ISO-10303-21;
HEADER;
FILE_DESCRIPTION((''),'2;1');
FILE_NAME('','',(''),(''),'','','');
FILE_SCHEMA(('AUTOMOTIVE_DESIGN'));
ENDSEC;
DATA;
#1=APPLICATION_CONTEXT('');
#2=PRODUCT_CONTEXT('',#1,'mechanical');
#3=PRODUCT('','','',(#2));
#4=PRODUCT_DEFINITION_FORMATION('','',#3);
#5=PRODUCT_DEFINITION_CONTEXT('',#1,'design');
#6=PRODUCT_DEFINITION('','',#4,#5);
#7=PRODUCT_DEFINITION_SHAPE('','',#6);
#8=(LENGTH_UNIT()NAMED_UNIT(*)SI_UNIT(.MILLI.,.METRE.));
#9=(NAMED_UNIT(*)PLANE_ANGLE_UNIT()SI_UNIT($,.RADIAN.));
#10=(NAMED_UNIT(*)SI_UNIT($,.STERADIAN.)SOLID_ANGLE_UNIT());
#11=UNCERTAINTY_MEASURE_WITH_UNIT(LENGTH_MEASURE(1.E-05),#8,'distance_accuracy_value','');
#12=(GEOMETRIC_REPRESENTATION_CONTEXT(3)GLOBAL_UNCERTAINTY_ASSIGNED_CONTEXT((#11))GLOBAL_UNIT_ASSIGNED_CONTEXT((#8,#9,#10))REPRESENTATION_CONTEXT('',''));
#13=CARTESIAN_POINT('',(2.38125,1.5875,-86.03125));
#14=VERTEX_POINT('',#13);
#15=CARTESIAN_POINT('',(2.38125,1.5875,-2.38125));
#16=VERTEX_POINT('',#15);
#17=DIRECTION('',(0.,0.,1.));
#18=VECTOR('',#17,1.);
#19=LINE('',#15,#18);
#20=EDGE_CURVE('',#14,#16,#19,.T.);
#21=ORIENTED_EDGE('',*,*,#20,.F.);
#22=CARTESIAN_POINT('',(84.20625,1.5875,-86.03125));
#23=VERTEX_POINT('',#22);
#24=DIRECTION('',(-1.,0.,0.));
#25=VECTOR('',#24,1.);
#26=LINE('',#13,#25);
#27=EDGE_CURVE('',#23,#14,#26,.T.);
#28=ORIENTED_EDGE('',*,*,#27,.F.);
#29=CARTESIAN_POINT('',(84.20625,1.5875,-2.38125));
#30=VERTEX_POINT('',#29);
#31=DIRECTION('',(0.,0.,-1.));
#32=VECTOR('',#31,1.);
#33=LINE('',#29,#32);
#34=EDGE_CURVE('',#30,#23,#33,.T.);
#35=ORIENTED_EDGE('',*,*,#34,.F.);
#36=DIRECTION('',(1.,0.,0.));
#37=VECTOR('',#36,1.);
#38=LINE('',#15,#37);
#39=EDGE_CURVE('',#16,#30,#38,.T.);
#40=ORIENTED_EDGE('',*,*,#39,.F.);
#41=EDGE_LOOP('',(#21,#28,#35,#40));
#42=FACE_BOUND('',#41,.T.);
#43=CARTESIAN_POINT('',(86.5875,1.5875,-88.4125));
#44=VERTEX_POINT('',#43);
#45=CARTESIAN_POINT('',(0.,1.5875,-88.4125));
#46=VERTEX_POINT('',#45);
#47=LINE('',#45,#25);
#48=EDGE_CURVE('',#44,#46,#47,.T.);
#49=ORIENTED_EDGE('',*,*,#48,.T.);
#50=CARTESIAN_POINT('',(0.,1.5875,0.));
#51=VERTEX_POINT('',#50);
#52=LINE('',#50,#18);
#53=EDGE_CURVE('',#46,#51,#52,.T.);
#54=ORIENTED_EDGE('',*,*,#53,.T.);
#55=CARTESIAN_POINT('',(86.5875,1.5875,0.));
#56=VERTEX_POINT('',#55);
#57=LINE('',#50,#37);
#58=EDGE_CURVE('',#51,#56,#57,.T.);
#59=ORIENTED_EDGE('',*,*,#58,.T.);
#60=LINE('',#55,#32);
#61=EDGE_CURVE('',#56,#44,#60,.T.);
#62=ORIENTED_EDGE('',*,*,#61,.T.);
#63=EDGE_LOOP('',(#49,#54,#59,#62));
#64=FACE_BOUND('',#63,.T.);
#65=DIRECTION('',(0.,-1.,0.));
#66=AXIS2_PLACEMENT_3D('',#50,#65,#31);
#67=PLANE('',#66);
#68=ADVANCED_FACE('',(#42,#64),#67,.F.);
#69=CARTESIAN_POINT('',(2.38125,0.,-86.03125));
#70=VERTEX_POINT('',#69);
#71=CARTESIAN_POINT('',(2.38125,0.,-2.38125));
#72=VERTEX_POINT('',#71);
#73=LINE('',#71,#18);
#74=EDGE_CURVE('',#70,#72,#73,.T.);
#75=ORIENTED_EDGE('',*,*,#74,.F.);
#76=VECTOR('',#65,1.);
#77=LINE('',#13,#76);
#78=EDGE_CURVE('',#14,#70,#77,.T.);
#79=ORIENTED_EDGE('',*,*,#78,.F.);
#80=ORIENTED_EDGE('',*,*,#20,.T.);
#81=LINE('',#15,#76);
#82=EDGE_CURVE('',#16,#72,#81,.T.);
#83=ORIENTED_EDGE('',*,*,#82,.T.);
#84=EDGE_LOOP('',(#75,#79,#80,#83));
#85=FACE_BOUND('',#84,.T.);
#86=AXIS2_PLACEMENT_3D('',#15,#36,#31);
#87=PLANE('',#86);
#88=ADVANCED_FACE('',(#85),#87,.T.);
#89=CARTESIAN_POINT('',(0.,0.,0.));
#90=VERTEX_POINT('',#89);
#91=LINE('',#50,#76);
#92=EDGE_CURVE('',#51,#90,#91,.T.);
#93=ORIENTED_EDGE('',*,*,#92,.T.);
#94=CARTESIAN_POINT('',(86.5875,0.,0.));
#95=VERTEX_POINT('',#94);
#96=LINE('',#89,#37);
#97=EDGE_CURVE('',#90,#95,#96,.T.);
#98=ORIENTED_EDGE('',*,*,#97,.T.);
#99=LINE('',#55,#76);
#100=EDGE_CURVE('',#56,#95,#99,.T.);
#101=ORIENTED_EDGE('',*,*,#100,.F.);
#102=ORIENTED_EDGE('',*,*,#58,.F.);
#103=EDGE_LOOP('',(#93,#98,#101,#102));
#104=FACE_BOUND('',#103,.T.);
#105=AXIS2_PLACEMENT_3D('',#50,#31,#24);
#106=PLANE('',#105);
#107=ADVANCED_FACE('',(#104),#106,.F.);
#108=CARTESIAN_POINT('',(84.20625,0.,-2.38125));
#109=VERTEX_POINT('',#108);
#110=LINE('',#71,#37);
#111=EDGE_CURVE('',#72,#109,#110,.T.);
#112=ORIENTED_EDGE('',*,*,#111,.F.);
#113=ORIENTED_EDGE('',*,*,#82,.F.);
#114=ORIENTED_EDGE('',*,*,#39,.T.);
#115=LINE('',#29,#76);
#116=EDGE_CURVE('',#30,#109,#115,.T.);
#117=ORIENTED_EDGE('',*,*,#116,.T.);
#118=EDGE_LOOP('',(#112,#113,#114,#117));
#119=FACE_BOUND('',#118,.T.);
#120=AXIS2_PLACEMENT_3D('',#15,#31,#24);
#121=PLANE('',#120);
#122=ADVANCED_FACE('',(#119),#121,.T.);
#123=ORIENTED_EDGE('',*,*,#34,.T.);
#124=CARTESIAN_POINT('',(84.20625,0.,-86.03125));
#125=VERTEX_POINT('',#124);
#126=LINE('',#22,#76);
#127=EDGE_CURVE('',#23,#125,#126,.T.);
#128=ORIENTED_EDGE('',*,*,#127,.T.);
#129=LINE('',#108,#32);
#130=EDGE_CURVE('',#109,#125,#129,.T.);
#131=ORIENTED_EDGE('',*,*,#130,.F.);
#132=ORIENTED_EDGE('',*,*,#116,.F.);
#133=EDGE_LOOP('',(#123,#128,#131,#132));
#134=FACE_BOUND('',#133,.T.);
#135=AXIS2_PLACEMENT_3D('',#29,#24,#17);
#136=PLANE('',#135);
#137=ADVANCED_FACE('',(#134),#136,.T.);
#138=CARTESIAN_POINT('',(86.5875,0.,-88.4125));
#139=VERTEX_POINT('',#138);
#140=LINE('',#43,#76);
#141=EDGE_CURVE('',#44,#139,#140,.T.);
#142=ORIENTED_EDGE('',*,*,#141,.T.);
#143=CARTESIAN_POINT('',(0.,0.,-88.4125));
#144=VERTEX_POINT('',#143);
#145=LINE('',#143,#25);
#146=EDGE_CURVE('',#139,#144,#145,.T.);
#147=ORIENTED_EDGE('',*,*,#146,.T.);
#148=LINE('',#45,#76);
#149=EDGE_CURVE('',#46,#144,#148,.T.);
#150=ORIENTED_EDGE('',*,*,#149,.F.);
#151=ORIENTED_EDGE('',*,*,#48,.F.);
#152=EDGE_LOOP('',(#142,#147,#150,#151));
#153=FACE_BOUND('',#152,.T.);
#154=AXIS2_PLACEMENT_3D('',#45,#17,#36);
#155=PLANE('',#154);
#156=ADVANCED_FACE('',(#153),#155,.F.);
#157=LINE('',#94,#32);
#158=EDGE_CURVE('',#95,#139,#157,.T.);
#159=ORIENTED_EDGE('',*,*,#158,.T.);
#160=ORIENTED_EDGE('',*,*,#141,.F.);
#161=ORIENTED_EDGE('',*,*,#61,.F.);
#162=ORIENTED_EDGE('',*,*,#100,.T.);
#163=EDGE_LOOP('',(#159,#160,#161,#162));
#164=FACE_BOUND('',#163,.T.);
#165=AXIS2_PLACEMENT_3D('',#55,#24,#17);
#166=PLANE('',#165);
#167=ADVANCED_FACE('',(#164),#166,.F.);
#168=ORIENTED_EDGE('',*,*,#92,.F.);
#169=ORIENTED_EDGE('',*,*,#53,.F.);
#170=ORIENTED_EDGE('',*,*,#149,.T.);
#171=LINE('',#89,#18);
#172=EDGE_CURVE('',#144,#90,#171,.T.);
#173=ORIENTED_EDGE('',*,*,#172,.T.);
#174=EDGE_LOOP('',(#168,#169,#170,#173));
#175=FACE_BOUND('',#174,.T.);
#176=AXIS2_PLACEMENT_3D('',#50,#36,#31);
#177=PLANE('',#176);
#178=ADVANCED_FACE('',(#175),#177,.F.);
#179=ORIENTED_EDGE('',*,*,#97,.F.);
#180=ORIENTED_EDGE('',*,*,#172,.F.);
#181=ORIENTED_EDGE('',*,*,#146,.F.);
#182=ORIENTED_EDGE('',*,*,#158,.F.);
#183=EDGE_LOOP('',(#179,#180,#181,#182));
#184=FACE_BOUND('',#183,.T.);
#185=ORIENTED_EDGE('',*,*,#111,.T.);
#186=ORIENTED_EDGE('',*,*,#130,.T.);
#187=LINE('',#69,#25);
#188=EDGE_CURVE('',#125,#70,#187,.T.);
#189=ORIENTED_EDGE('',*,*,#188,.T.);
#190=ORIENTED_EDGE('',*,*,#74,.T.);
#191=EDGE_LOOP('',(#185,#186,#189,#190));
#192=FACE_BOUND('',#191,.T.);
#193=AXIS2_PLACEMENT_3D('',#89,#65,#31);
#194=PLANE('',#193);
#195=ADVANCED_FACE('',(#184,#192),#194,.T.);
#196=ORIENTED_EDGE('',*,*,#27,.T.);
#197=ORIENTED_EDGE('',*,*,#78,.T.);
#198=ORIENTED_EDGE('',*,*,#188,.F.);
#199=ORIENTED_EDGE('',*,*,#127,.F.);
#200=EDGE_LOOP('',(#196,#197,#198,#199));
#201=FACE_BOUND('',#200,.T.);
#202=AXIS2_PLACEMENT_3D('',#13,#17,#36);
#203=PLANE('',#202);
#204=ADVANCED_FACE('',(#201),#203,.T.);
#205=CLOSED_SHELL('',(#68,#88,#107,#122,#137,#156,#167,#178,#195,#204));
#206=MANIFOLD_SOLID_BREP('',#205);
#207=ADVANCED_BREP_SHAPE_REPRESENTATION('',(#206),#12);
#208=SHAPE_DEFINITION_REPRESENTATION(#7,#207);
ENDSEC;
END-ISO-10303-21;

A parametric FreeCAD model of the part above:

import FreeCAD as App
import Part
import Sketcher
from FreeCAD import Vector
Q = App.Units.Quantity


def add_polygon(sketch, points):
    """Adds a closed chain of lines whose ends are joined by coincident constraints."""
    first, n = sketch.GeometryCount, len(points)
    for a, b in zip(points, points[1:] + points[:1]):
        sketch.addGeometry(Part.LineSegment(App.Vector(*a, 0), App.Vector(*b, 0)), False)
    for i in range(n):
        sketch.addConstraint(Sketcher.Constraint("Coincident", first + i, 2, first + (i + 1) % n, 1))

doc = App.newDocument("Part")
params = doc.addObject("Spreadsheet::Sheet", "Params")
for row, (alias, value) in enumerate([
    ("pad1_length", "0.0625 in"),
], start=1):
    params.set(f"A{row}", alias)
    params.set(f"B{row}", "=" + value)
    params.setAlias(f"B{row}", alias)

body = doc.addObject("PartDesign::Body", "Body")

# Sketch on XZ plane
sketch1 = body.newObject("Sketcher::SketchObject", "Sketch")
sketch1.AttachmentSupport = (doc.getObject("XZ_Plane"), [""])
sketch1.MapMode = "FlatFace"
add_polygon(sketch1, [(0, -88), (0, 0), (87, 0), (87, -88)])  # lines 0-3
add_polygon(sketch1, [(84, -2), (2, -2), (2, -86), (84, -86)])  # lines 4-7
sketch1.addConstraint([
    Sketcher.Constraint("Vertical", 0),
    Sketcher.Constraint("Horizontal", 1),
    Sketcher.Constraint("Vertical", 2),
    Sketcher.Constraint("Horizontal", 3),
    Sketcher.Constraint("Horizontal", 4),
    Sketcher.Constraint("Vertical", 5),
    Sketcher.Constraint("Horizontal", 6),
    Sketcher.Constraint("Vertical", 7),
    Sketcher.Constraint("Coincident", 0, 2, -1, 1),
    Sketcher.Constraint("DistanceX", -1, 1, 4, 2, Q("0.09375 in")),
    Sketcher.Constraint("DistanceY", 4, 2, -1, 1, Q("0.09375 in")),
    Sketcher.Constraint("DistanceY", 3, 2, 5, 2, Q("0.09375 in")),
    Sketcher.Constraint("DistanceX", 6, 2, 2, 2, Q("0.09375 in")),
    Sketcher.Constraint("DistanceX", 1, 1, 1, 2, 86.5875),
    Sketcher.Constraint("DistanceY", 0, 1, 0, 2, 88.4125),
])
pad1 = body.newObject("PartDesign::Pad", "Pad")
pad1.Profile = sketch1
pad1.setExpression("Length", "Params.pad1_length")
pad1.Reversed = True

doc.recompute()
